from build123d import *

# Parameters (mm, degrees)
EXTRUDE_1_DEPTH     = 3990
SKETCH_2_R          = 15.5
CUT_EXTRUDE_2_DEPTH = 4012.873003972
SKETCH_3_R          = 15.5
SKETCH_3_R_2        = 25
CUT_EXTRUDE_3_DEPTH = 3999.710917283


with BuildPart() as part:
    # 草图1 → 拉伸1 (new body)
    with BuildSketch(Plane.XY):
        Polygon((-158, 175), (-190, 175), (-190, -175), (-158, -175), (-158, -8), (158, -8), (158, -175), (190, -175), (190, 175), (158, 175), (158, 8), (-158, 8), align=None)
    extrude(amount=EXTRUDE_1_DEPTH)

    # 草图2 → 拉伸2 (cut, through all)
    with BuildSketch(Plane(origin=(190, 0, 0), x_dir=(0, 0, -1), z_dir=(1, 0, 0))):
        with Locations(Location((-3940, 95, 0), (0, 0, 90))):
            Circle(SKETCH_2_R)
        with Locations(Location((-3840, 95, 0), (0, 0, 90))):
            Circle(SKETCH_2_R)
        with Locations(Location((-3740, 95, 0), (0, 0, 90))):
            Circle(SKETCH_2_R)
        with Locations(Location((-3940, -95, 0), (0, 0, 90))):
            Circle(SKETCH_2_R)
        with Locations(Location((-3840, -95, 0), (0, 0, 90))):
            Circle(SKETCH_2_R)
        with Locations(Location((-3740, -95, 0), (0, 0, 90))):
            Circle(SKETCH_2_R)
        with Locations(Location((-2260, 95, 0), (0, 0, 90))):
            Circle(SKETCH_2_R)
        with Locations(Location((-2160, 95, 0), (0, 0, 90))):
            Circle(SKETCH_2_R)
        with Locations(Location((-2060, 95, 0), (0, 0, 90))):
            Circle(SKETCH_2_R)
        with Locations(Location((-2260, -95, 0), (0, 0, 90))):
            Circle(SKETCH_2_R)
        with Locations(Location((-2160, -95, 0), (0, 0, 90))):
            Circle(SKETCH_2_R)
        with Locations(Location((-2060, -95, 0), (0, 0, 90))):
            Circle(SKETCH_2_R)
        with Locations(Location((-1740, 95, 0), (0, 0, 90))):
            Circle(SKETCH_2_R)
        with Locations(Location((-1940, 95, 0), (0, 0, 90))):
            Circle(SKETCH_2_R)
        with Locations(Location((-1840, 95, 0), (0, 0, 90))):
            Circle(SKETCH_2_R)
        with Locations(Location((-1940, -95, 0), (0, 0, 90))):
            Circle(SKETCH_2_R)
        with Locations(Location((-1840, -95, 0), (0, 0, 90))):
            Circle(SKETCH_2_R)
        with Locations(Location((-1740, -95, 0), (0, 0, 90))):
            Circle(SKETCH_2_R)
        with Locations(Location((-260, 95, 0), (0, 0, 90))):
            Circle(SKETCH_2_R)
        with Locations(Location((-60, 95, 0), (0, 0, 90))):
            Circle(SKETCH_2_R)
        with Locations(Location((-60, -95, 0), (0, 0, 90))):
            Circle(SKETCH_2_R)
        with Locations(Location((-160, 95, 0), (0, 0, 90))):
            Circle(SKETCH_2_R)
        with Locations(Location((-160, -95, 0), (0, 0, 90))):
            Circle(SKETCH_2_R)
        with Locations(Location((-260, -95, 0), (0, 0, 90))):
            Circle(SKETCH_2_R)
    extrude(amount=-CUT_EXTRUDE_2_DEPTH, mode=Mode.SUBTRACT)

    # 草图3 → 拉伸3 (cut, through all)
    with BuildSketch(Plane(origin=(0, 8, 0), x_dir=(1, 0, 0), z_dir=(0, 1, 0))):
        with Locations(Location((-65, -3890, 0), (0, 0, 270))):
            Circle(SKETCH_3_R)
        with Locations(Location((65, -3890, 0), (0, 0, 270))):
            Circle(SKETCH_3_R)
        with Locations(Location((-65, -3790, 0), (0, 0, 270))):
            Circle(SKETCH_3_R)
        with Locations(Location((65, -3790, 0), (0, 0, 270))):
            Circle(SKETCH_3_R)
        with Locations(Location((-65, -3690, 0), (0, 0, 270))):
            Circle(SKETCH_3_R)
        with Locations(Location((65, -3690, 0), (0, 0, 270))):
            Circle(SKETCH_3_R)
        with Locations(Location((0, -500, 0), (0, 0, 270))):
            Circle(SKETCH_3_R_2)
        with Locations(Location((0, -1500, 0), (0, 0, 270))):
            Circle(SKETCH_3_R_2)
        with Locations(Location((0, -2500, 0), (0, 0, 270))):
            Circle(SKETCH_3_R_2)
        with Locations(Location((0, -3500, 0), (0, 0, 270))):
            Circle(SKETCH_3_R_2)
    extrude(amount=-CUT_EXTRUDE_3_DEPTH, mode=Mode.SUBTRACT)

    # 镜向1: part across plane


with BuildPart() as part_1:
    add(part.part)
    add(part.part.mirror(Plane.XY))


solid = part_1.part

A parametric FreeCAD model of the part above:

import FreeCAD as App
import Part
import Sketcher

doc = App.newDocument("Part")
params = doc.addObject("Spreadsheet::Sheet", "Params")
for row, (alias, value) in enumerate([
    ("sketch1_width", "32 mm"),
    ("sketch1_width2", "316 mm"),
    ("sketch1_height", "350 mm"),
    ("sketch1_height2", "167 mm"),
    ("pad1_length", "3990 mm"),
    ("sketch2_diameter", "31 mm"),
    ("sketch3_diameter", "31 mm"),
    ("sketch3_diameter2", "50 mm"),
], start=1):
    params.set(f"A{row}", alias)
    params.set(f"B{row}", "=" + value)
    params.setAlias(f"B{row}", alias)

body = doc.addObject("PartDesign::Body", "Body")

sketch1 = body.newObject("Sketcher::SketchObject", "Sketch")
sketch1.AttachmentSupport = (doc.getObject("XY_Plane"), [""])
sketch1.MapMode = "FlatFace"
sketch1.addGeometry([
    Part.LineSegment(App.Vector(-158, 175, 0), App.Vector(-190, 175, 0)),
    Part.LineSegment(App.Vector(-190, 175, 0), App.Vector(-190, -175, 0)),
    Part.LineSegment(App.Vector(-190, -175, 0), App.Vector(-158, -175, 0)),
    Part.LineSegment(App.Vector(-158, -175, 0), App.Vector(-158, -8, 0)),
    Part.LineSegment(App.Vector(-158, -8, 0), App.Vector(158, -8, 0)),
    Part.LineSegment(App.Vector(158, -8, 0), App.Vector(158, -175, 0)),
    Part.LineSegment(App.Vector(158, -175, 0), App.Vector(190, -175, 0)),
    Part.LineSegment(App.Vector(190, -175, 0), App.Vector(190, 175, 0)),
    Part.LineSegment(App.Vector(190, 175, 0), App.Vector(158, 175, 0)),
    Part.LineSegment(App.Vector(158, 175, 0), App.Vector(158, 8, 0)),
    Part.LineSegment(App.Vector(158, 8, 0), App.Vector(-158, 8, 0)),
    Part.LineSegment(App.Vector(-158, 8, 0), App.Vector(-158, 175, 0)),
], False)
sketch1.addConstraint([
    Sketcher.Constraint("Coincident", 0, 2, 1, 1),
    Sketcher.Constraint("Coincident", 1, 2, 2, 1),
    Sketcher.Constraint("Coincident", 2, 2, 3, 1),
    Sketcher.Constraint("Coincident", 3, 2, 4, 1),
    Sketcher.Constraint("Coincident", 4, 2, 5, 1),
    Sketcher.Constraint("Coincident", 5, 2, 6, 1),
    Sketcher.Constraint("Coincident", 6, 2, 7, 1),
    Sketcher.Constraint("Coincident", 7, 2, 8, 1),
    Sketcher.Constraint("Coincident", 8, 2, 9, 1),
    Sketcher.Constraint("Coincident", 9, 2, 10, 1),
    Sketcher.Constraint("Coincident", 10, 2, 11, 1),
    Sketcher.Constraint("Coincident", 11, 2, 0, 1),
    Sketcher.Constraint("Horizontal", 0),
    Sketcher.Constraint("Vertical", 1),
    Sketcher.Constraint("Horizontal", 2),
    Sketcher.Constraint("Vertical", 3),
    Sketcher.Constraint("Horizontal", 4),
    Sketcher.Constraint("Vertical", 5),
    Sketcher.Constraint("Horizontal", 6),
    Sketcher.Constraint("Vertical", 7),
    Sketcher.Constraint("Horizontal", 8),
    Sketcher.Constraint("Vertical", 9),
    Sketcher.Constraint("Horizontal", 10),
    Sketcher.Constraint("Vertical", 11),
    Sketcher.Constraint("Symmetric", 0, 2, 6, 2, -1, 1),
    Sketcher.Constraint("Symmetric", 2, 2, 8, 2, -1, 1),
    Sketcher.Constraint("Symmetric", 4, 2, 10, 2, -1, 1),
    Sketcher.Constraint("Symmetric", 2, 2, 5, 2, -2),
    Sketcher.Constraint("DistanceX", 0, 2, 0, 1, 32.0),
    Sketcher.Constraint("DistanceX", 4, 1, 4, 2, 316.0),
    Sketcher.Constraint("DistanceY", 1, 2, 1, 1, 350.0),
    Sketcher.Constraint("DistanceY", 3, 1, 3, 2, 167.0),
])
sketch1.setExpression("Constraints[28]", "Params.sketch1_width")
sketch1.setExpression("Constraints[29]", "Params.sketch1_width2")
sketch1.setExpression("Constraints[30]", "Params.sketch1_height")
sketch1.setExpression("Constraints[31]", "Params.sketch1_height2")
pad1 = body.newObject("PartDesign::Pad", "Pad")
pad1.Profile = sketch1
pad1.setExpression("Length", "Params.pad1_length")

sketch2 = body.newObject("Sketcher::SketchObject", "Sketch001")
sketch2.AttachmentSupport = (doc.getObject("YZ_Plane"), [""])
sketch2.MapMode = "FlatFace"
sketch2.AttachmentOffset = App.Placement(App.Vector(0, 0, 190), App.Rotation())
sketch2.addGeometry([
    Part.Circle(App.Vector(95, 3940, 0), App.Vector(0, 0, 1), 16),
    Part.Circle(App.Vector(95, 3840, 0), App.Vector(0, 0, 1), 16),
    Part.Circle(App.Vector(95, 3740, 0), App.Vector(0, 0, 1), 16),
    Part.Circle(App.Vector(-95, 3940, 0), App.Vector(0, 0, 1), 16),
    Part.Circle(App.Vector(-95, 3840, 0), App.Vector(0, 0, 1), 16),
    Part.Circle(App.Vector(-95, 3740, 0), App.Vector(0, 0, 1), 16),
    Part.Circle(App.Vector(95, 2260, 0), App.Vector(0, 0, 1), 16),
    Part.Circle(App.Vector(95, 2160, 0), App.Vector(0, 0, 1), 16),
    Part.Circle(App.Vector(95, 2060, 0), App.Vector(0, 0, 1), 16),
    Part.Circle(App.Vector(-95, 2260, 0), App.Vector(0, 0, 1), 16),
    Part.Circle(App.Vector(-95, 2160, 0), App.Vector(0, 0, 1), 16),
    Part.Circle(App.Vector(-95, 2060, 0), App.Vector(0, 0, 1), 16),
    Part.Circle(App.Vector(95, 1740, 0), App.Vector(0, 0, 1), 16),
    Part.Circle(App.Vector(95, 1940, 0), App.Vector(0, 0, 1), 16),
    Part.Circle(App.Vector(95, 1840, 0), App.Vector(0, 0, 1), 16),
    Part.Circle(App.Vector(-95, 1940, 0), App.Vector(0, 0, 1), 16),
    Part.Circle(App.Vector(-95, 1840, 0), App.Vector(0, 0, 1), 16),
    Part.Circle(App.Vector(-95, 1740, 0), App.Vector(0, 0, 1), 16),
    Part.Circle(App.Vector(95, 260, 0), App.Vector(0, 0, 1), 16),
    Part.Circle(App.Vector(95, 60, 0), App.Vector(0, 0, 1), 16),
    Part.Circle(App.Vector(-95, 60, 0), App.Vector(0, 0, 1), 16),
    Part.Circle(App.Vector(95, 160, 0), App.Vector(0, 0, 1), 16),
    Part.Circle(App.Vector(-95, 160, 0), App.Vector(0, 0, 1), 16),
    Part.Circle(App.Vector(-95, 260, 0), App.Vector(0, 0, 1), 16),
], False)
sketch2.addConstraint([
    Sketcher.Constraint("Equal", 0, 1),
    Sketcher.Constraint("Equal", 1, 2),
    Sketcher.Constraint("Equal", 2, 3),
    Sketcher.Constraint("Equal", 3, 4),
    Sketcher.Constraint("Equal", 4, 5),
    Sketcher.Constraint("Equal", 5, 6),
    Sketcher.Constraint("Equal", 6, 7),
    Sketcher.Constraint("Equal", 7, 8),
    Sketcher.Constraint("Equal", 8, 9),
    Sketcher.Constraint("Equal", 9, 10),
    Sketcher.Constraint("Equal", 10, 11),
    Sketcher.Constraint("Equal", 11, 12),
    Sketcher.Constraint("Equal", 12, 13),
    Sketcher.Constraint("Equal", 13, 14),
    Sketcher.Constraint("Equal", 14, 15),
    Sketcher.Constraint("Equal", 15, 16),
    Sketcher.Constraint("Equal", 16, 17),
    Sketcher.Constraint("Equal", 17, 18),
    Sketcher.Constraint("Equal", 18, 19),
    Sketcher.Constraint("Equal", 19, 20),
    Sketcher.Constraint("Equal", 20, 21),
    Sketcher.Constraint("Equal", 21, 22),
    Sketcher.Constraint("Equal", 22, 23),
    Sketcher.Constraint("Symmetric", 0, 3, 3, 3, -2),
    Sketcher.Constraint("Symmetric", 1, 3, 4, 3, -2),
    Sketcher.Constraint("Symmetric", 2, 3, 5, 3, -2),
    Sketcher.Constraint("Symmetric", 6, 3, 9, 3, -2),
    Sketcher.Constraint("Symmetric", 7, 3, 10, 3, -2),
    Sketcher.Constraint("Symmetric", 8, 3, 11, 3, -2),
    Sketcher.Constraint("Symmetric", 13, 3, 15, 3, -2),
    Sketcher.Constraint("Symmetric", 14, 3, 16, 3, -2),
    Sketcher.Constraint("Symmetric", 12, 3, 17, 3, -2),
    Sketcher.Constraint("Symmetric", 19, 3, 20, 3, -2),
    Sketcher.Constraint("Symmetric", 21, 3, 22, 3, -2),
    Sketcher.Constraint("Symmetric", 18, 3, 23, 3, -2),
    Sketcher.Constraint("Vertical", 0, 3, 1, 3),
    Sketcher.Constraint("Vertical", 1, 3, 2, 3),
    Sketcher.Constraint("Vertical", 2, 3, 6, 3),
    Sketcher.Constraint("Vertical", 6, 3, 7, 3),
    Sketcher.Constraint("Vertical", 7, 3, 8, 3),
    Sketcher.Constraint("Vertical", 8, 3, 12, 3),
    Sketcher.Constraint("Vertical", 12, 3, 13, 3),
    Sketcher.Constraint("Vertical", 13, 3, 14, 3),
    Sketcher.Constraint("Vertical", 14, 3, 18, 3),
    Sketcher.Constraint("Vertical", 18, 3, 19, 3),
    Sketcher.Constraint("Vertical", 19, 3, 21, 3),
    Sketcher.Constraint("Diameter", 0, 31.0),
    Sketcher.Constraint("DistanceX", -1, 1, 0, 3, 95.0),
    Sketcher.Constraint("DistanceY", -1, 1, 0, 3, 3940.0),
    Sketcher.Constraint("DistanceY", -1, 1, 1, 3, 3840.0),
    Sketcher.Constraint("DistanceY", -1, 1, 2, 3, 3740.0),
    Sketcher.Constraint("DistanceY", -1, 1, 6, 3, 2260.0),
    Sketcher.Constraint("DistanceY", -1, 1, 7, 3, 2160.0),
    Sketcher.Constraint("DistanceY", -1, 1, 8, 3, 2060.0),
    Sketcher.Constraint("DistanceY", -1, 1, 12, 3, 1740.0),
    Sketcher.Constraint("DistanceY", -1, 1, 13, 3, 1940.0),
    Sketcher.Constraint("DistanceY", -1, 1, 14, 3, 1840.0),
    Sketcher.Constraint("DistanceY", -1, 1, 18, 3, 260.0),
    Sketcher.Constraint("DistanceY", -1, 1, 19, 3, 60.0),
    Sketcher.Constraint("DistanceY", -1, 1, 21, 3, 160.0),
])
sketch2.setExpression("Constraints[46]", "Params.sketch2_diameter")
pocket1 = body.newObject("PartDesign::Pocket", "Pocket")
pocket1.Profile = sketch2
pocket1.Type = "ThroughAll"

sketch3 = body.newObject("Sketcher::SketchObject", "Sketch002")
sketch3.AttachmentSupport = (doc.getObject("XZ_Plane"), [""])
sketch3.MapMode = "FlatFace"
sketch3.AttachmentOffset = App.Placement(App.Vector(0, 0, -8), App.Rotation())
sketch3.addGeometry([
    Part.Circle(App.Vector(-65, 3890, 0), App.Vector(0, 0, 1), 16),
    Part.Circle(App.Vector(65, 3890, 0), App.Vector(0, 0, 1), 16),
    Part.Circle(App.Vector(-65, 3790, 0), App.Vector(0, 0, 1), 16),
    Part.Circle(App.Vector(65, 3790, 0), App.Vector(0, 0, 1), 16),
    Part.Circle(App.Vector(-65, 3690, 0), App.Vector(0, 0, 1), 16),
    Part.Circle(App.Vector(65, 3690, 0), App.Vector(0, 0, 1), 16),
    Part.Circle(App.Vector(0, 500, 0), App.Vector(0, 0, 1), 25),
    Part.Circle(App.Vector(0, 1500, 0), App.Vector(0, 0, 1), 25),
    Part.Circle(App.Vector(0, 2500, 0), App.Vector(0, 0, 1), 25),
    Part.Circle(App.Vector(0, 3500, 0), App.Vector(0, 0, 1), 25),
], False)
sketch3.addConstraint([
    Sketcher.Constraint("Equal", 0, 1),
    Sketcher.Constraint("Equal", 1, 2),
    Sketcher.Constraint("Equal", 2, 3),
    Sketcher.Constraint("Equal", 3, 4),
    Sketcher.Constraint("Equal", 4, 5),
    Sketcher.Constraint("Equal", 6, 7),
    Sketcher.Constraint("Equal", 7, 8),
    Sketcher.Constraint("Equal", 8, 9),
    Sketcher.Constraint("Symmetric", 0, 3, 1, 3, -2),
    Sketcher.Constraint("Symmetric", 2, 3, 3, 3, -2),
    Sketcher.Constraint("Symmetric", 4, 3, 5, 3, -2),
    Sketcher.Constraint("PointOnObject", 6, 3, -2),
    Sketcher.Constraint("PointOnObject", 7, 3, -2),
    Sketcher.Constraint("PointOnObject", 8, 3, -2),
    Sketcher.Constraint("PointOnObject", 9, 3, -2),
    Sketcher.Constraint("Vertical", 0, 3, 2, 3),
    Sketcher.Constraint("Vertical", 2, 3, 4, 3),
    Sketcher.Constraint("Diameter", 0, 31.0),
    Sketcher.Constraint("Diameter", 6, 50.0),
    Sketcher.Constraint("DistanceX", 0, 3, -1, 1, 65.0),
    Sketcher.Constraint("DistanceY", -1, 1, 0, 3, 3890.0),
    Sketcher.Constraint("DistanceY", -1, 1, 2, 3, 3790.0),
    Sketcher.Constraint("DistanceY", -1, 1, 4, 3, 3690.0),
    Sketcher.Constraint("DistanceY", -1, 1, 6, 3, 500.0),
    Sketcher.Constraint("DistanceY", -1, 1, 7, 3, 1500.0),
    Sketcher.Constraint("DistanceY", -1, 1, 8, 3, 2500.0),
    Sketcher.Constraint("DistanceY", -1, 1, 9, 3, 3500.0),
])
sketch3.setExpression("Constraints[17]", "Params.sketch3_diameter")
sketch3.setExpression("Constraints[18]", "Params.sketch3_diameter2")
pocket2 = body.newObject("PartDesign::Pocket", "Pocket001")
pocket2.Profile = sketch3
pocket2.Type = "ThroughAll"
pocket2.Reversed = True
body2 = doc.addObject("PartDesign::Body", "Body001")
doc.recompute()

body2.BaseFeature = body
doc.recompute()

mirroring = doc.addObject("Part::Mirroring", "Mirroring")
mirroring.Source = body
mirroring.Base = App.Vector(0, 0, 0)
mirroring.Normal = App.Vector(0, 0, 1)
body3 = doc.addObject("PartDesign::Body", "Body002")
body3.BaseFeature = mirroring
boolean = body2.newObject("PartDesign::Boolean", "Boolean")
boolean.Type = "Fuse"
boolean.addObjects([body3])
doc.recompute()
mirroring.Visibility = False

doc.recompute()
